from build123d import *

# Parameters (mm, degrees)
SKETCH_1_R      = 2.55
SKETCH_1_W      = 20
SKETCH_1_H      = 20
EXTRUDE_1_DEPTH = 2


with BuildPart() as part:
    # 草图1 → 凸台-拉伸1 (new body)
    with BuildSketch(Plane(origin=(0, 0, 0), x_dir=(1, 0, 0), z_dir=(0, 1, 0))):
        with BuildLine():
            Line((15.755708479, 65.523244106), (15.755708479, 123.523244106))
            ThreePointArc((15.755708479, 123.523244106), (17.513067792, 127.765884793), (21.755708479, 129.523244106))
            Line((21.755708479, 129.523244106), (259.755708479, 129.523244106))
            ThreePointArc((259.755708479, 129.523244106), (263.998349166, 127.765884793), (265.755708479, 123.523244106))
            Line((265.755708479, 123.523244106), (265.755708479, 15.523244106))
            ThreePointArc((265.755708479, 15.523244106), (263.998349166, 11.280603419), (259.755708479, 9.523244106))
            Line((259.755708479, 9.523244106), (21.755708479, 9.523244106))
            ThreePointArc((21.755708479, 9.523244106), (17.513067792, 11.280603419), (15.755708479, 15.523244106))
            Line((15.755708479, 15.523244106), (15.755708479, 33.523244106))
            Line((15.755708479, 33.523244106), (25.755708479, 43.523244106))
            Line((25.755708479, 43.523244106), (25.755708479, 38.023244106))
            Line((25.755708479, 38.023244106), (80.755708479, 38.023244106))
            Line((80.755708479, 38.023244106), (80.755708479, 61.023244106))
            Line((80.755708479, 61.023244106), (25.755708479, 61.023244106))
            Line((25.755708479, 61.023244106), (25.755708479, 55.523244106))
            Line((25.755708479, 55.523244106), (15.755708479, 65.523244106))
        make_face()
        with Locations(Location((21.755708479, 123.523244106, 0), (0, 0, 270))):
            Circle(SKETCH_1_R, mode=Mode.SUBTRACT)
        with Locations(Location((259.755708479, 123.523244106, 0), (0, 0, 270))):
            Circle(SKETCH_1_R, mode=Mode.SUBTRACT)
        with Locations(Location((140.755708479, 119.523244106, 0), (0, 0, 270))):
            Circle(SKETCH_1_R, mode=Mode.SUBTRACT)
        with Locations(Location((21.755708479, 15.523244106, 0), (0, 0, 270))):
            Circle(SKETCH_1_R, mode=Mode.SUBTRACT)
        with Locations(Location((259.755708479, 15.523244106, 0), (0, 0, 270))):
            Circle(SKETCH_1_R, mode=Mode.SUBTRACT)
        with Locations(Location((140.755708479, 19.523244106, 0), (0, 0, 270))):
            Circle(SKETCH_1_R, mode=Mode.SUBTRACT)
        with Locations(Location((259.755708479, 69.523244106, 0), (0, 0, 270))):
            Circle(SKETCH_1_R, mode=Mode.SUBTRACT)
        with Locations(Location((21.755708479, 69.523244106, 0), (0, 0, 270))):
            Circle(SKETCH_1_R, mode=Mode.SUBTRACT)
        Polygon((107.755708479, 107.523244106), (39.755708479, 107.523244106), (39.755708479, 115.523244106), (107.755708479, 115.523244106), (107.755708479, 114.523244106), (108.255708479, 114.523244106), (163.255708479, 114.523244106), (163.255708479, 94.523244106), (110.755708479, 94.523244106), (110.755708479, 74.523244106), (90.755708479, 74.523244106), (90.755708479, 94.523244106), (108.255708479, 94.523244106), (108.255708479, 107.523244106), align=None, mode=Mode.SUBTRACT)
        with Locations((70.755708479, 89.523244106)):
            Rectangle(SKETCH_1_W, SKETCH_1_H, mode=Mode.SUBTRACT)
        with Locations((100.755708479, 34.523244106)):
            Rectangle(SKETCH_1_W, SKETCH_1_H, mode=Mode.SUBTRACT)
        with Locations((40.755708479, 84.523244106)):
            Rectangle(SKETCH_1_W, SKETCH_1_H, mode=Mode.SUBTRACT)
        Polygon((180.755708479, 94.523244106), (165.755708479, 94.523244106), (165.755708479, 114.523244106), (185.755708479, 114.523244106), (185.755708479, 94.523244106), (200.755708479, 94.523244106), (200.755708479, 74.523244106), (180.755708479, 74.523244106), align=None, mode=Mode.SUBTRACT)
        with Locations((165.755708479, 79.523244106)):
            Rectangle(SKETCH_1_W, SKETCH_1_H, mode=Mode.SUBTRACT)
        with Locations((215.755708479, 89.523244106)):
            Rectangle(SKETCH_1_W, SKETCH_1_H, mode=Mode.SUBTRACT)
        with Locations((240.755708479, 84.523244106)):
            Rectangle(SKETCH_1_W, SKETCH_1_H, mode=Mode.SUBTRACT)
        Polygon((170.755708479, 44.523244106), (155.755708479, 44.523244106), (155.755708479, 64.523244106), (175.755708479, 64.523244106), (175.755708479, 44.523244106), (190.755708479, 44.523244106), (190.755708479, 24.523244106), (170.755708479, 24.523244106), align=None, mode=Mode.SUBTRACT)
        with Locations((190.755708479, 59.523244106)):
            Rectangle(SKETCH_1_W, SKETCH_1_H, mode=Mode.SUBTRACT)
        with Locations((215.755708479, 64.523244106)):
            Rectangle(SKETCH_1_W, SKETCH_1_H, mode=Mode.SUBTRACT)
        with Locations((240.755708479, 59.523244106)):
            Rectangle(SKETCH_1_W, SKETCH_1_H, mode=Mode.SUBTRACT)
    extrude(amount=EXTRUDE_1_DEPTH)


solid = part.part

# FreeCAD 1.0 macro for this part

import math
import FreeCAD as App
import Part
import Sketcher

V = App.Vector


def add_polygon(sketch, points):
    """Adds a closed chain of lines whose ends are joined by coincident constraints."""
    first, n = sketch.GeometryCount, len(points)
    for a, b in zip(points, points[1:] + points[:1]):
        sketch.addGeometry(Part.LineSegment(App.Vector(*a, 0), App.Vector(*b, 0)), False)
    for i in range(n):
        sketch.addConstraint(Sketcher.Constraint("Coincident", first + i, 2, first + (i + 1) % n, 1))

doc = App.newDocument("Part")
body = doc.addObject("PartDesign::Body", "Body")

sketch1 = doc.addObject("Sketcher::SketchObject", "Sketch")
body.addObject(sketch1)
sketch1.AttachmentSupport = (doc.XZ_Plane, [""])
sketch1.MapMode = "FlatFace"
sketch1.addGeometry(Part.LineSegment(V(15.8, -123.5, 0), V(15.8, -65.5, 0)), False)
sketch1.addGeometry(Part.LineSegment(V(15.8, -65.5, 0), V(25.8, -55.5, 0)), False)
sketch1.addGeometry(Part.LineSegment(V(25.8, -55.5, 0), V(25.8, -61, 0)), False)
sketch1.addGeometry(Part.LineSegment(V(25.8, -61, 0), V(80.8, -61, 0)), False)
sketch1.addGeometry(Part.LineSegment(V(80.8, -61, 0), V(80.8, -38, 0)), False)
sketch1.addGeometry(Part.LineSegment(V(80.8, -38, 0), V(25.8, -38, 0)), False)
sketch1.addGeometry(Part.LineSegment(V(25.8, -38, 0), V(25.8, -43.5, 0)), False)
sketch1.addGeometry(Part.LineSegment(V(25.8, -43.5, 0), V(15.8, -33.5, 0)), False)
sketch1.addGeometry(Part.LineSegment(V(15.8, -33.5, 0), V(15.8, -15.5, 0)), False)
sketch1.addGeometry(Part.ArcOfCircle(Part.Circle(V(21.8, -15.5, 0), V(0, 0, 1), 6), math.radians(90), math.radians(180)), False)
sketch1.addGeometry(Part.LineSegment(V(21.8, -9.5, 0), V(259.8, -9.5, 0)), False)
sketch1.addGeometry(Part.ArcOfCircle(Part.Circle(V(259.8, -15.5, 0), V(0, 0, 1), 6), math.radians(0), math.radians(90)), False)
sketch1.addGeometry(Part.LineSegment(V(265.8, -15.5, 0), V(265.8, -123.5, 0)), False)
sketch1.addGeometry(Part.ArcOfCircle(Part.Circle(V(259.8, -123.5, 0), V(0, 0, 1), 6), math.radians(-90), math.radians(0)), False)
sketch1.addGeometry(Part.LineSegment(V(259.8, -129.5, 0), V(21.8, -129.5, 0)), False)
sketch1.addGeometry(Part.ArcOfCircle(Part.Circle(V(21.8, -123.5, 0), V(0, 0, 1), 6), math.radians(180), math.radians(270)), False)
sketch1.addGeometry(Part.Circle(V(259.8, -15.5, 0), V(0, 0, 1), 2.5), False)
add_polygon(sketch1, [(230.8, -49.5), (230.8, -69.5), (250.8, -69.5), (250.8, -49.5)])
add_polygon(sketch1, [(205.8, -54.5), (205.8, -74.5), (225.8, -74.5), (225.8, -54.5)])
add_polygon(sketch1, [(170.8, -44.5), (155.8, -44.5), (155.8, -64.5), (175.8, -64.5), (175.8, -44.5), (190.8, -44.5), (190.8, -24.5), (170.8, -24.5)])
add_polygon(sketch1, [(180.8, -49.5), (180.8, -69.5), (200.8, -69.5), (200.8, -49.5)])
sketch1.addGeometry(Part.Circle(V(140.8, -19.5, 0), V(0, 0, 1), 2.5), False)
add_polygon(sketch1, [(90.8, -24.5), (90.8, -44.5), (110.8, -44.5), (110.8, -24.5)])
sketch1.addGeometry(Part.Circle(V(21.8, -15.5, 0), V(0, 0, 1), 2.5), False)
sketch1.addGeometry(Part.Circle(V(259.8, -69.5, 0), V(0, 0, 1), 2.5), False)
add_polygon(sketch1, [(230.8, -74.5), (230.8, -94.5), (250.8, -94.5), (250.8, -74.5)])
add_polygon(sketch1, [(205.8, -79.5), (205.8, -99.5), (225.8, -99.5), (225.8, -79.5)])
add_polygon(sketch1, [(155.8, -69.5), (155.8, -89.5), (175.8, -89.5), (175.8, -69.5)])
add_polygon(sketch1, [(180.8, -94.5), (165.8, -94.5), (165.8, -114.5), (185.8, -114.5), (185.8, -94.5), (200.8, -94.5), (200.8, -74.5), (180.8, -74.5)])
sketch1.addGeometry(Part.Circle(V(259.8, -123.5, 0), V(0, 0, 1), 2.5), False)
add_polygon(sketch1, [(39.8, -107.5), (39.8, -115.5), (107.8, -115.5), (107.8, -114.5), (163.3, -114.5), (163.3, -94.5), (110.8, -94.5), (110.8, -74.5), (90.8, -74.5), (90.8, -94.5), (108.3, -94.5), (108.3, -107.5)])
sketch1.addGeometry(Part.Circle(V(21.8, -69.5, 0), V(0, 0, 1), 2.5), False)
add_polygon(sketch1, [(60.8, -79.5), (60.8, -99.5), (80.8, -99.5), (80.8, -79.5)])
add_polygon(sketch1, [(30.8, -74.5), (30.8, -94.5), (50.8, -94.5), (50.8, -74.5)])
sketch1.addGeometry(Part.Circle(V(140.8, -119.5, 0), V(0, 0, 1), 2.5), False)
sketch1.addGeometry(Part.Circle(V(21.8, -123.5, 0), V(0, 0, 1), 2.5), False)
sketch1.addConstraint(Sketcher.Constraint("Coincident", 0, 2, 1, 1))
sketch1.addConstraint(Sketcher.Constraint("Coincident", 1, 2, 2, 1))
sketch1.addConstraint(Sketcher.Constraint("Coincident", 2, 2, 3, 1))
sketch1.addConstraint(Sketcher.Constraint("Coincident", 3, 2, 4, 1))
sketch1.addConstraint(Sketcher.Constraint("Coincident", 4, 2, 5, 1))
sketch1.addConstraint(Sketcher.Constraint("Coincident", 5, 2, 6, 1))
sketch1.addConstraint(Sketcher.Constraint("Coincident", 6, 2, 7, 1))
sketch1.addConstraint(Sketcher.Constraint("Coincident", 7, 2, 8, 1))
sketch1.addConstraint(Sketcher.Constraint("Tangent", 8, 2, 9, 2))
sketch1.addConstraint(Sketcher.Constraint("Tangent", 9, 1, 10, 1))
sketch1.addConstraint(Sketcher.Constraint("Tangent", 10, 2, 11, 2))
sketch1.addConstraint(Sketcher.Constraint("Tangent", 11, 1, 12, 1))
sketch1.addConstraint(Sketcher.Constraint("Tangent", 12, 2, 13, 2))
sketch1.addConstraint(Sketcher.Constraint("Tangent", 13, 1, 14, 1))
sketch1.addConstraint(Sketcher.Constraint("Tangent", 14, 2, 15, 2))
sketch1.addConstraint(Sketcher.Constraint("Tangent", 15, 1, 0, 1))
sketch1.addConstraint(Sketcher.Constraint("Vertical", 0))
sketch1.addConstraint(Sketcher.Constraint("Vertical", 2))
sketch1.addConstraint(Sketcher.Constraint("Horizontal", 3))
sketch1.addConstraint(Sketcher.Constraint("Vertical", 4))
sketch1.addConstraint(Sketcher.Constraint("Horizontal", 5))
sketch1.addConstraint(Sketcher.Constraint("Vertical", 6))
sketch1.addConstraint(Sketcher.Constraint("Vertical", 8))
sketch1.addConstraint(Sketcher.Constraint("Horizontal", 10))
sketch1.addConstraint(Sketcher.Constraint("Vertical", 12))
sketch1.addConstraint(Sketcher.Constraint("Horizontal", 14))
sketch1.addConstraint(Sketcher.Constraint("Vertical", 17))
sketch1.addConstraint(Sketcher.Constraint("Horizontal", 18))
sketch1.addConstraint(Sketcher.Constraint("Vertical", 19))
sketch1.addConstraint(Sketcher.Constraint("Horizontal", 20))
sketch1.addConstraint(Sketcher.Constraint("Vertical", 21))
sketch1.addConstraint(Sketcher.Constraint("Horizontal", 22))
sketch1.addConstraint(Sketcher.Constraint("Vertical", 23))
sketch1.addConstraint(Sketcher.Constraint("Horizontal", 24))
sketch1.addConstraint(Sketcher.Constraint("Horizontal", 25))
sketch1.addConstraint(Sketcher.Constraint("Vertical", 26))
sketch1.addConstraint(Sketcher.Constraint("Horizontal", 27))
sketch1.addConstraint(Sketcher.Constraint("Vertical", 28))
sketch1.addConstraint(Sketcher.Constraint("Horizontal", 29))
sketch1.addConstraint(Sketcher.Constraint("Vertical", 30))
sketch1.addConstraint(Sketcher.Constraint("Horizontal", 31))
sketch1.addConstraint(Sketcher.Constraint("Vertical", 32))
sketch1.addConstraint(Sketcher.Constraint("Vertical", 33))
sketch1.addConstraint(Sketcher.Constraint("Horizontal", 34))
sketch1.addConstraint(Sketcher.Constraint("Vertical", 35))
sketch1.addConstraint(Sketcher.Constraint("Horizontal", 36))
sketch1.addConstraint(Sketcher.Constraint("Vertical", 38))
sketch1.addConstraint(Sketcher.Constraint("Horizontal", 39))
sketch1.addConstraint(Sketcher.Constraint("Vertical", 40))
sketch1.addConstraint(Sketcher.Constraint("Horizontal", 41))
sketch1.addConstraint(Sketcher.Constraint("Vertical", 44))
sketch1.addConstraint(Sketcher.Constraint("Horizontal", 45))
sketch1.addConstraint(Sketcher.Constraint("Vertical", 46))
sketch1.addConstraint(Sketcher.Constraint("Horizontal", 47))
sketch1.addConstraint(Sketcher.Constraint("Vertical", 48))
sketch1.addConstraint(Sketcher.Constraint("Horizontal", 49))
sketch1.addConstraint(Sketcher.Constraint("Vertical", 50))
sketch1.addConstraint(Sketcher.Constraint("Horizontal", 51))
sketch1.addConstraint(Sketcher.Constraint("Vertical", 52))
sketch1.addConstraint(Sketcher.Constraint("Horizontal", 53))
sketch1.addConstraint(Sketcher.Constraint("Vertical", 54))
sketch1.addConstraint(Sketcher.Constraint("Horizontal", 55))
sketch1.addConstraint(Sketcher.Constraint("Horizontal", 56))
sketch1.addConstraint(Sketcher.Constraint("Vertical", 57))
sketch1.addConstraint(Sketcher.Constraint("Horizontal", 58))
sketch1.addConstraint(Sketcher.Constraint("Vertical", 59))
sketch1.addConstraint(Sketcher.Constraint("Horizontal", 60))
sketch1.addConstraint(Sketcher.Constraint("Vertical", 61))
sketch1.addConstraint(Sketcher.Constraint("Horizontal", 62))
sketch1.addConstraint(Sketcher.Constraint("Vertical", 63))
sketch1.addConstraint(Sketcher.Constraint("Vertical", 65))
sketch1.addConstraint(Sketcher.Constraint("Horizontal", 66))
sketch1.addConstraint(Sketcher.Constraint("Vertical", 67))
sketch1.addConstraint(Sketcher.Constraint("Horizontal", 68))
sketch1.addConstraint(Sketcher.Constraint("Vertical", 69))
sketch1.addConstraint(Sketcher.Constraint("Horizontal", 70))
sketch1.addConstraint(Sketcher.Constraint("Vertical", 71))
sketch1.addConstraint(Sketcher.Constraint("Horizontal", 72))
sketch1.addConstraint(Sketcher.Constraint("Vertical", 73))
sketch1.addConstraint(Sketcher.Constraint("Horizontal", 74))
sketch1.addConstraint(Sketcher.Constraint("Vertical", 75))
sketch1.addConstraint(Sketcher.Constraint("Horizontal", 76))
sketch1.addConstraint(Sketcher.Constraint("Vertical", 78))
sketch1.addConstraint(Sketcher.Constraint("Horizontal", 79))
sketch1.addConstraint(Sketcher.Constraint("Vertical", 80))
sketch1.addConstraint(Sketcher.Constraint("Horizontal", 81))
sketch1.addConstraint(Sketcher.Constraint("Vertical", 82))
sketch1.addConstraint(Sketcher.Constraint("Horizontal", 83))
sketch1.addConstraint(Sketcher.Constraint("Vertical", 84))
sketch1.addConstraint(Sketcher.Constraint("Horizontal", 85))
sketch1.addConstraint(Sketcher.Constraint("Coincident", 16, 3, 11, 3))
sketch1.addConstraint(Sketcher.Constraint("Coincident", 42, 3, 9, 3))
sketch1.addConstraint(Sketcher.Constraint("Coincident", 64, 3, 13, 3))
sketch1.addConstraint(Sketcher.Constraint("Coincident", 87, 3, 15, 3))
sketch1.addConstraint(Sketcher.Constraint("Equal", 9, 11))
sketch1.addConstraint(Sketcher.Constraint("Equal", 11, 13))
sketch1.addConstraint(Sketcher.Constraint("Equal", 13, 15))
sketch1.addConstraint(Sketcher.Constraint("Equal", 16, 37))
sketch1.addConstraint(Sketcher.Constraint("Equal", 37, 42))
sketch1.addConstraint(Sketcher.Constraint("Equal", 42, 43))
sketch1.addConstraint(Sketcher.Constraint("Equal", 43, 64))
sketch1.addConstraint(Sketcher.Constraint("Equal", 64, 77))
sketch1.addConstraint(Sketcher.Constraint("Equal", 77, 86))
sketch1.addConstraint(Sketcher.Constraint("Equal", 86, 87))
sketch1.addConstraint(Sketcher.Constraint("Perpendicular", 1, 7))
sketch1.addConstraint(Sketcher.Constraint("Horizontal", 43, 3, 77, 3))
sketch1.addConstraint(Sketcher.Constraint("Horizontal", 77, 3, 17, 2))
sketch1.addConstraint(Sketcher.Constraint("Horizontal", 25, 2, 28, 2))
sketch1.addConstraint(Sketcher.Constraint("Horizontal", 18, 2, 33, 2))
sketch1.addConstraint(Sketcher.Constraint("Horizontal", 20, 2, 35, 2))
sketch1.addConstraint(Sketcher.Constraint("Horizontal", 32, 2, 38, 2))
sketch1.addConstraint(Sketcher.Constraint("Horizontal", 31, 2, 40, 2))
sketch1.addConstraint(Sketcher.Constraint("Horizontal", 22, 2, 46, 2))
sketch1.addConstraint(Sketcher.Constraint("Horizontal", 34, 2, 54, 2))
sketch1.addConstraint(Sketcher.Constraint("Horizontal", 45, 2, 56, 2))
sketch1.addConstraint(Sketcher.Constraint("Horizontal", 56, 2, 59, 2))
sketch1.addConstraint(Sketcher.Constraint("Horizontal", 47, 2, 61, 2))
sketch1.addConstraint(Sketcher.Constraint("Horizontal", 58, 2, 67, 2))
sketch1.addConstraint(Sketcher.Constraint("Horizontal", 63, 2, 69, 2))
sketch1.addConstraint(Sketcher.Constraint("Horizontal", 62, 2, 71, 2))
sketch1.addConstraint(Sketcher.Constraint("Horizontal", 70, 2, 73, 2))
sketch1.addConstraint(Sketcher.Constraint("Horizontal", 49, 2, 78, 2))
sketch1.addConstraint(Sketcher.Constraint("Horizontal", 51, 2, 80, 2))
sketch1.addConstraint(Sketcher.Constraint("Horizontal", 74, 2, 82, 2))
sketch1.addConstraint(Sketcher.Constraint("Horizontal", 72, 2, 84, 2))
sketch1.addConstraint(Sketcher.Constraint("Vertical", 9, 3, 15, 3))
sketch1.addConstraint(Sketcher.Constraint("Vertical", 16, 3, 43, 3))
sketch1.addConstraint(Sketcher.Constraint("Vertical", 42, 3, 77, 3))
sketch1.addConstraint(Sketcher.Constraint("Vertical", 37, 3, 86, 3))
sketch1.addConstraint(Sketcher.Constraint("Vertical", 2, 2, 5, 2))
sketch1.addConstraint(Sketcher.Constraint("Vertical", 20, 2, 44, 2))
sketch1.addConstraint(Sketcher.Constraint("Vertical", 19, 2, 45, 2))
sketch1.addConstraint(Sketcher.Constraint("Vertical", 24, 2, 48, 2))
sketch1.addConstraint(Sketcher.Constraint("Vertical", 23, 2, 49, 2))
sketch1.addConstraint(Sketcher.Constraint("Vertical", 26, 2, 52, 2))
sketch1.addConstraint(Sketcher.Constraint("Vertical", 28, 2, 53, 2))
sketch1.addConstraint(Sketcher.Constraint("Vertical", 35, 2, 60, 2))
sketch1.addConstraint(Sketcher.Constraint("Vertical", 36, 2, 62, 2))
sketch1.addConstraint(Sketcher.Constraint("Vertical", 40, 2, 70, 2))
sketch1.addConstraint(Sketcher.Constraint("Vertical", 41, 2, 72, 2))
sketch1.addConstraint(Sketcher.Constraint("Vertical", 4, 2, 79, 2))
sketch1.addConstraint(Sketcher.Constraint("Equal", 20, 22))
sketch1.addConstraint(Sketcher.Constraint("Equal", 24, 27))
sketch1.addConstraint(Sketcher.Constraint("Equal", 25, 29))
sketch1.addConstraint(Sketcher.Constraint("Equal", 31, 34))
sketch1.addConstraint(Sketcher.Constraint("Equal", 36, 39))
sketch1.addConstraint(Sketcher.Constraint("Equal", 29, 56))
sketch1.addConstraint(Sketcher.Constraint("Equal", 55, 58))
sketch1.addConstraint(Sketcher.Constraint("Equal", 72, 79))
sketch1.addConstraint(Sketcher.Constraint("Equal", 81, 83))
sketch1.addConstraint(Sketcher.Constraint("Equal", 2, 6))
sketch1.addConstraint(Sketcher.Constraint("Equal", 85, 17))
sketch1.addConstraint(Sketcher.Constraint("Equal", 19, 21))
sketch1.addConstraint(Sketcher.Constraint("Equal", 23, 26))
sketch1.addConstraint(Sketcher.Constraint("Equal", 28, 30))
sketch1.addConstraint(Sketcher.Constraint("Equal", 40, 44))
sketch1.addConstraint(Sketcher.Constraint("Equal", 46, 48))
sketch1.addConstraint(Sketcher.Constraint("Equal", 50, 52))
sketch1.addConstraint(Sketcher.Constraint("Equal", 54, 57))
sketch1.addConstraint(Sketcher.Constraint("Equal", 1, 7))
sketch1.addConstraint(Sketcher.Constraint("Radius", 9, 6.0))
sketch1.addConstraint(Sketcher.Constraint("Diameter", 16, 5.1))
sketch1.addConstraint(Sketcher.Constraint("DistanceX", 3, 1, 3, 2, 55.0))
sketch1.addConstraint(Sketcher.Constraint("DistanceX", 10, 1, 10, 2, 238.0))
sketch1.addConstraint(Sketcher.Constraint("DistanceX", 18, 1, 18, 2, 20.0))
sketch1.addConstraint(Sketcher.Constraint("DistanceX", 25, 2, 25, 1, 15.0))
sketch1.addConstraint(Sketcher.Constraint("DistanceX", 66, 1, 66, 2, 68.0))
sketch1.addConstraint(Sketcher.Constraint("DistanceY", 0, 1, 0, 2, 58.0))
sketch1.addConstraint(Sketcher.Constraint("DistanceY", 4, 1, 4, 2, 23.0))
sketch1.addConstraint(Sketcher.Constraint("DistanceY", 8, 1, 8, 2, 18.0))
sketch1.addConstraint(Sketcher.Constraint("DistanceY", 12, 2, 12, 1, 108.0))
sketch1.addConstraint(Sketcher.Constraint("DistanceY", 65, 2, 65, 1, 8.0))
sketch1.addConstraint(Sketcher.Constraint("DistanceY", 67, 1, 67, 2, 1.0))
sketch1.addConstraint(Sketcher.Constraint("DistanceX", 68, 1, 68, 2, 55.5))
sketch1.addConstraint(Sketcher.Constraint("DistanceX", 70, 2, 70, 1, 52.5))
sketch1.addConstraint(Sketcher.Constraint("DistanceX", 74, 1, 74, 2, 17.5))
sketch1.addConstraint(Sketcher.Constraint("DistanceY", 2, 2, 2, 1, 5.5))
sketch1.addConstraint(Sketcher.Constraint("DistanceX", -1, 1, 9, 3, 21.755708))
sketch1.addConstraint(Sketcher.Constraint("DistanceX", -1, 1, 37, 3, 140.755708))
sketch1.addConstraint(Sketcher.Constraint("DistanceX", -1, 1, 17, 2, 230.755708))
sketch1.addConstraint(Sketcher.Constraint("DistanceX", -1, 1, 21, 2, 205.755708))
sketch1.addConstraint(Sketcher.Constraint("DistanceX", -1, 1, 25, 2, 155.755708))
sketch1.addConstraint(Sketcher.Constraint("DistanceX", -1, 1, 33, 2, 180.755708))
sketch1.addConstraint(Sketcher.Constraint("DistanceX", -1, 1, 38, 2, 90.755708))
sketch1.addConstraint(Sketcher.Constraint("DistanceX", -1, 1, 82, 2, 30.755708))
sketch1.addConstraint(Sketcher.Constraint("DistanceY", 9, 3, -1, 1, 15.523244))
sketch1.addConstraint(Sketcher.Constraint("DistanceY", 37, 3, -1, 1, 19.523244))
sketch1.addConstraint(Sketcher.Constraint("DistanceY", 43, 3, -1, 1, 69.523244))
sketch1.addConstraint(Sketcher.Constraint("DistanceY", 86, 3, -1, 1, 119.523244))
sketch1.addConstraint(Sketcher.Constraint("DistanceY", 21, 2, -1, 1, 74.523244))
sketch1.addConstraint(Sketcher.Constraint("DistanceY", 25, 2, -1, 1, 44.523244))
sketch1.addConstraint(Sketcher.Constraint("DistanceY", 48, 2, -1, 1, 99.523244))
pad1 = doc.addObject("PartDesign::Pad", "Pad")
body.addObject(pad1)
pad1.Profile = sketch1
pad1.Length = 2
pad1.Reversed = True

doc.recompute()
